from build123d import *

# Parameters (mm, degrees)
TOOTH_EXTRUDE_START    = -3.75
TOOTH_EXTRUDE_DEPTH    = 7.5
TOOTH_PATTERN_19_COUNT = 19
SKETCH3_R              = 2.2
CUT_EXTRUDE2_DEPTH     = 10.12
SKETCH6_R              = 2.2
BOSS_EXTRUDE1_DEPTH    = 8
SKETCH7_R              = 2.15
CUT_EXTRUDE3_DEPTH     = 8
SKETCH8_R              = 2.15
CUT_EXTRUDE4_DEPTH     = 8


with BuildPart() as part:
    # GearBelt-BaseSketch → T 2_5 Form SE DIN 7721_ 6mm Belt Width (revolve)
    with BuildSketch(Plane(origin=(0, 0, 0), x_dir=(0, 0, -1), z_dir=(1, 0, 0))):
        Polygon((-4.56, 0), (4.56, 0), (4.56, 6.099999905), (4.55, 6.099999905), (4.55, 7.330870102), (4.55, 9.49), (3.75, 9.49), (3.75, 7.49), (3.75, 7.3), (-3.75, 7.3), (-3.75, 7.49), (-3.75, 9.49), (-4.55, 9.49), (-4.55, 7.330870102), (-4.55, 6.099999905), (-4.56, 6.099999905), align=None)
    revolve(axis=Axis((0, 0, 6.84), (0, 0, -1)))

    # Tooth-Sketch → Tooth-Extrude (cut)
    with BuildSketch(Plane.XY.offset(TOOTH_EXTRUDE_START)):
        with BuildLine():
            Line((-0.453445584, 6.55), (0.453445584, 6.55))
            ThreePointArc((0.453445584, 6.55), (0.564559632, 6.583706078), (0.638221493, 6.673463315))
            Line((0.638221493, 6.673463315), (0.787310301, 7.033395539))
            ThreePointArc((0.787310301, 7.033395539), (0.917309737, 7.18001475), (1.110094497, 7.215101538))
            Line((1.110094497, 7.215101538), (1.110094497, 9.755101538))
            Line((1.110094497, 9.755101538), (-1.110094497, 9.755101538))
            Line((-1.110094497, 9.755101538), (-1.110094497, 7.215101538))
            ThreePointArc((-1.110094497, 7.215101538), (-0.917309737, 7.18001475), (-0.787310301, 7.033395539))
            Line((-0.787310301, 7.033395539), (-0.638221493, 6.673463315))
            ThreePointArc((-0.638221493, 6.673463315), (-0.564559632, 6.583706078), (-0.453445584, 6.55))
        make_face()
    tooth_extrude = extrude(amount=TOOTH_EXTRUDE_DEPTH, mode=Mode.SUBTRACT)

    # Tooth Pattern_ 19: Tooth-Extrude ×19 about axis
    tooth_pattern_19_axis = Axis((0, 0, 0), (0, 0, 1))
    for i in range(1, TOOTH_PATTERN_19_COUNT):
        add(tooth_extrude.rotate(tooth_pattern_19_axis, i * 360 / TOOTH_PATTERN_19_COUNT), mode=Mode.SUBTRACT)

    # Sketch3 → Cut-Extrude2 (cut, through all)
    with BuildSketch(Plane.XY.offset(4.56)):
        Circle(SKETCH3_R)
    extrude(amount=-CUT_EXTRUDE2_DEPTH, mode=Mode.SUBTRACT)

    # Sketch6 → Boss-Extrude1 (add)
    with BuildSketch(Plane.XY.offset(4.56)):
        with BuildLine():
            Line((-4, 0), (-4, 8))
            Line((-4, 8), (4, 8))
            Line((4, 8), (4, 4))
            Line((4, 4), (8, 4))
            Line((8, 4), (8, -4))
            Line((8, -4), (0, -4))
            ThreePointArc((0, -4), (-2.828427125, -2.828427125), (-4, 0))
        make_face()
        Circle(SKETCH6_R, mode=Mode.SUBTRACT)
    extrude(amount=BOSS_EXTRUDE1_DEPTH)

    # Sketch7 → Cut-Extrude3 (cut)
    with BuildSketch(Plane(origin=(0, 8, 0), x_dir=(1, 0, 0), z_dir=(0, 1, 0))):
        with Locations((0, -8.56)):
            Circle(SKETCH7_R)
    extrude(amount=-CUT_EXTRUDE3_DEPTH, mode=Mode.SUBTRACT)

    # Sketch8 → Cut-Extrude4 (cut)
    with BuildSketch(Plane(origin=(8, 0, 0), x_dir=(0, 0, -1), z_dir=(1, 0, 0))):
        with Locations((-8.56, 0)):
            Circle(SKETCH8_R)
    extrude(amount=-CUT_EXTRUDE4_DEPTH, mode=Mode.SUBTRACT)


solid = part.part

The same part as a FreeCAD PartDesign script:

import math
import FreeCAD as App
import Part
import Sketcher
Q = App.Units.Quantity


def add_polygon(sketch, points):
    """Adds a closed chain of lines whose ends are joined by coincident constraints."""
    first, n = sketch.GeometryCount, len(points)
    for a, b in zip(points, points[1:] + points[:1]):
        sketch.addGeometry(Part.LineSegment(App.Vector(*a, 0), App.Vector(*b, 0)), False)
    for i in range(n):
        sketch.addConstraint(Sketcher.Constraint("Coincident", first + i, 2, first + (i + 1) % n, 1))

doc = App.newDocument("Part")
body = doc.addObject("PartDesign::Body", "Body")

sketch1 = doc.addObject("Sketcher::SketchObject", "Sketch")
body.addObject(sketch1)
sketch1.AttachmentSupport = (doc.YZ_Plane, [""])
sketch1.MapMode = "FlatFace"
add_polygon(sketch1, [(0, 4.56), (0, -4.56), (6.1, -4.56), (6.1, -4.55), (9.49, -4.55), (9.49, -3.75), (7.3, -3.75), (7.3, 3.75), (9.49, 3.75), (9.49, 4.55), (6.1, 4.55), (6.1, 4.56)])
sketch1.addConstraint([
    Sketcher.Constraint("Vertical", 0),
    Sketcher.Constraint("Horizontal", 1),
    Sketcher.Constraint("Vertical", 2),
    Sketcher.Constraint("Horizontal", 3),
    Sketcher.Constraint("Vertical", 4),
    Sketcher.Constraint("Horizontal", 5),
    Sketcher.Constraint("Vertical", 6),
    Sketcher.Constraint("Horizontal", 7),
    Sketcher.Constraint("Vertical", 8),
    Sketcher.Constraint("Horizontal", 9),
    Sketcher.Constraint("Vertical", 10),
    Sketcher.Constraint("Horizontal", 11),
    Sketcher.Constraint("Symmetric", 0, 2, 11, 2, -1, 1),
    Sketcher.Constraint("Symmetric", 4, 2, 7, 2, -1),
    Sketcher.Constraint("Symmetric", 2, 2, 9, 2, -1),
    Sketcher.Constraint("DistanceX", 1, 1, 1, 2, Q("6.1 mm")),
    Sketcher.Constraint("DistanceY", 4, 1, 4, 2, Q("0.8 mm")),
    Sketcher.Constraint("DistanceY", 6, 1, 6, 2, Q("7.5 mm")),
    Sketcher.Constraint("DistanceX", 3, 1, 3, 2, Q("3.39 mm")),
    Sketcher.Constraint("DistanceX", 5, 2, 5, 1, Q("2.19 mm")),
    Sketcher.Constraint("DistanceY", 0, 2, 0, 1, Q("9.12 mm")),
])
revolution = doc.addObject("PartDesign::Revolution", "Revolution")
body.addObject(revolution)
revolution.Profile = sketch1
revolution.ReferenceAxis = (sketch1, ["V_Axis"])
revolution.Angle = 360

sketch2 = doc.addObject("Sketcher::SketchObject", "Sketch001")
body.addObject(sketch2)
sketch2.AttachmentSupport = (doc.XY_Plane, [""])
sketch2.MapMode = "FlatFace"
sketch2.AttachmentOffset = App.Placement(App.Vector(0, 0, -3.75), App.Rotation())
sketch2.addGeometry([
    Part.LineSegment(App.Vector(-0.45, 6.55, 0), App.Vector(0.45, 6.55, 0)),
    Part.ArcOfCircle(Part.Circle(App.Vector(0.45, 6.75, 0), App.Vector(0, 0, 1), 0.2), math.radians(-90), math.radians(-23)),
    Part.LineSegment(App.Vector(0.64, 6.67, 0), App.Vector(0.79, 7.03, 0)),
    Part.ArcOfCircle(Part.Circle(App.Vector(1.06, 6.92, 0), App.Vector(0, 0, 1), 0.3), math.radians(81), math.radians(157)),
    Part.LineSegment(App.Vector(1.11, 7.22, 0), App.Vector(1.11, 9.76, 0)),
    Part.LineSegment(App.Vector(1.11, 9.76, 0), App.Vector(-1.11, 9.76, 0)),
    Part.LineSegment(App.Vector(-1.11, 9.76, 0), App.Vector(-1.11, 7.22, 0)),
    Part.ArcOfCircle(Part.Circle(App.Vector(-1.06, 6.92, 0), App.Vector(0, 0, 1), 0.3), math.radians(23), math.radians(99)),
    Part.LineSegment(App.Vector(-0.79, 7.03, 0), App.Vector(-0.64, 6.67, 0)),
    Part.ArcOfCircle(Part.Circle(App.Vector(-0.45, 6.75, 0), App.Vector(0, 0, 1), 0.2), math.radians(-157), math.radians(-90)),
], False)
sketch2.addConstraint([
    Sketcher.Constraint("Tangent", 0, 2, 1, 1),
    Sketcher.Constraint("Tangent", 1, 2, 2, 1),
    Sketcher.Constraint("Tangent", 2, 2, 3, 2),
    Sketcher.Constraint("Coincident", 3, 1, 4, 1),
    Sketcher.Constraint("Coincident", 4, 2, 5, 1),
    Sketcher.Constraint("Coincident", 5, 2, 6, 1),
    Sketcher.Constraint("Coincident", 6, 2, 7, 2),
    Sketcher.Constraint("Tangent", 7, 1, 8, 1),
    Sketcher.Constraint("Tangent", 8, 2, 9, 1),
    Sketcher.Constraint("Tangent", 9, 2, 0, 1),
    Sketcher.Constraint("Horizontal", 0),
    Sketcher.Constraint("Vertical", 4),
    Sketcher.Constraint("Horizontal", 5),
    Sketcher.Constraint("Vertical", 6),
    Sketcher.Constraint("Equal", 3, 7),
    Sketcher.Constraint("Equal", 1, 9),
    Sketcher.Constraint("Symmetric", 3, 3, 7, 3, -2),
    Sketcher.Constraint("Horizontal", 3, 1, 6, 2),
    Sketcher.Constraint("Horizontal", 2, 2, 7, 1),
    Sketcher.Constraint("Radius", 1, Q("0.2 mm")),
    Sketcher.Constraint("Radius", 3, Q("0.3 mm")),
    Sketcher.Constraint("Angle", 2, Q("67.5 deg")),
    Sketcher.Constraint("DistanceY", 4, 1, 4, 2, Q("2.54 mm")),
    Sketcher.Constraint("DistanceY", -1, 1, 1, 3, Q("6.75 mm")),
    Sketcher.Constraint("DistanceX", 0, 1, 0, 2, Q("0.906891 mm")),
    Sketcher.Constraint("DistanceX", 5, 2, 5, 1, Q("2.220189 mm")),
    Sketcher.Constraint("DistanceY", -1, 1, 3, 1, Q("7.215102 mm")),
])
pocket1 = doc.addObject("PartDesign::Pocket", "Pocket")
body.addObject(pocket1)
pocket1.Profile = sketch2
pocket1.Length = 7.5
pocket1.Reversed = True
doc.recompute()

polarpattern = doc.addObject("PartDesign::PolarPattern", "PolarPattern")
body.addObject(polarpattern)
polarpattern.Originals = [pocket1]
polarpattern.Axis = (doc.Z_Axis, [""])
polarpattern.Angle = 360
polarpattern.Occurrences = 19
body.Tip = polarpattern

sketch3 = doc.addObject("Sketcher::SketchObject", "Sketch002")
body.addObject(sketch3)
sketch3.AttachmentSupport = (doc.XY_Plane, [""])
sketch3.MapMode = "FlatFace"
sketch3.AttachmentOffset = App.Placement(App.Vector(0, 0, 4.56), App.Rotation())
sketch3.addGeometry(Part.Circle(App.Vector(0, 0, 0), App.Vector(0, 0, 1), 2.2), False)
sketch3.addConstraint([
    Sketcher.Constraint("Coincident", 0, 3, -1, 1),
    Sketcher.Constraint("Diameter", 0, Q("4.4 mm")),
])
pocket2 = doc.addObject("PartDesign::Pocket", "Pocket001")
body.addObject(pocket2)
pocket2.Profile = sketch3
pocket2.Type = "ThroughAll"

sketch4 = doc.addObject("Sketcher::SketchObject", "Sketch003")
body.addObject(sketch4)
sketch4.AttachmentSupport = (doc.XY_Plane, [""])
sketch4.MapMode = "FlatFace"
sketch4.AttachmentOffset = App.Placement(App.Vector(0, 0, 4.56), App.Rotation())
sketch4.addGeometry([
    Part.LineSegment(App.Vector(-4, 8, 0), App.Vector(-4, 0, 0)),
    Part.ArcOfCircle(Part.Circle(App.Vector(0, 0, 0), App.Vector(0, 0, 1), 4), math.radians(180), math.radians(270)),
    Part.LineSegment(App.Vector(0, -4, 0), App.Vector(8, -4, 0)),
    Part.LineSegment(App.Vector(8, -4, 0), App.Vector(8, 4, 0)),
    Part.LineSegment(App.Vector(8, 4, 0), App.Vector(4, 4, 0)),
    Part.LineSegment(App.Vector(4, 4, 0), App.Vector(4, 8, 0)),
    Part.LineSegment(App.Vector(4, 8, 0), App.Vector(-4, 8, 0)),
    Part.Circle(App.Vector(0, 0, 0), App.Vector(0, 0, 1), 2.2),
], False)
sketch4.addConstraint([
    Sketcher.Constraint("Tangent", 0, 2, 1, 1),
    Sketcher.Constraint("Tangent", 1, 2, 2, 1),
    Sketcher.Constraint("Coincident", 2, 2, 3, 1),
    Sketcher.Constraint("Coincident", 3, 2, 4, 1),
    Sketcher.Constraint("Coincident", 4, 2, 5, 1),
    Sketcher.Constraint("Coincident", 5, 2, 6, 1),
    Sketcher.Constraint("Coincident", 6, 2, 0, 1),
    Sketcher.Constraint("Vertical", 0),
    Sketcher.Constraint("Horizontal", 2),
    Sketcher.Constraint("Vertical", 3),
    Sketcher.Constraint("Horizontal", 4),
    Sketcher.Constraint("Vertical", 5),
    Sketcher.Constraint("Horizontal", 6),
    Sketcher.Constraint("Coincident", 1, 3, -1, 1),
    Sketcher.Constraint("Coincident", 7, 3, -1, 1),
    Sketcher.Constraint("Equal", 2, 6),
    Sketcher.Constraint("Equal", 6, 0),
    Sketcher.Constraint("Equal", 0, 3),
    Sketcher.Constraint("Radius", 1, Q("4 mm")),
    Sketcher.Constraint("Diameter", 7, Q("4.4 mm")),
    Sketcher.Constraint("DistanceX", 2, 1, 2, 2, Q("8 mm")),
])
pad1 = doc.addObject("PartDesign::Pad", "Pad")
body.addObject(pad1)
pad1.Profile = sketch4
pad1.Length = 8

sketch5 = doc.addObject("Sketcher::SketchObject", "Sketch004")
body.addObject(sketch5)
sketch5.AttachmentSupport = (doc.XZ_Plane, [""])
sketch5.MapMode = "FlatFace"
sketch5.AttachmentOffset = App.Placement(App.Vector(0, 0, -8), App.Rotation())
sketch5.addGeometry(Part.Circle(App.Vector(0, 8.6, 0), App.Vector(0, 0, 1), 2.1), False)
sketch5.addConstraint([
    Sketcher.Constraint("PointOnObject", 0, 3, -2),
    Sketcher.Constraint("Diameter", 0, Q("4.3 mm")),
    Sketcher.Constraint("DistanceY", -1, 1, 0, 3, Q("8.56 mm")),
])
pocket3 = doc.addObject("PartDesign::Pocket", "Pocket002")
body.addObject(pocket3)
pocket3.Profile = sketch5
pocket3.Length = 8
pocket3.Reversed = True

sketch6 = doc.addObject("Sketcher::SketchObject", "Sketch005")
body.addObject(sketch6)
sketch6.AttachmentSupport = (doc.YZ_Plane, [""])
sketch6.MapMode = "FlatFace"
sketch6.AttachmentOffset = App.Placement(App.Vector(0, 0, 8), App.Rotation())
sketch6.addGeometry(Part.Circle(App.Vector(0, 8.6, 0), App.Vector(0, 0, 1), 2.1), False)
sketch6.addConstraint([
    Sketcher.Constraint("PointOnObject", 0, 3, -2),
    Sketcher.Constraint("Diameter", 0, Q("4.3 mm")),
    Sketcher.Constraint("DistanceY", -1, 1, 0, 3, Q("8.56 mm")),
])
pocket4 = doc.addObject("PartDesign::Pocket", "Pocket003")
body.addObject(pocket4)
pocket4.Profile = sketch6
pocket4.Length = 8

doc.recompute()
